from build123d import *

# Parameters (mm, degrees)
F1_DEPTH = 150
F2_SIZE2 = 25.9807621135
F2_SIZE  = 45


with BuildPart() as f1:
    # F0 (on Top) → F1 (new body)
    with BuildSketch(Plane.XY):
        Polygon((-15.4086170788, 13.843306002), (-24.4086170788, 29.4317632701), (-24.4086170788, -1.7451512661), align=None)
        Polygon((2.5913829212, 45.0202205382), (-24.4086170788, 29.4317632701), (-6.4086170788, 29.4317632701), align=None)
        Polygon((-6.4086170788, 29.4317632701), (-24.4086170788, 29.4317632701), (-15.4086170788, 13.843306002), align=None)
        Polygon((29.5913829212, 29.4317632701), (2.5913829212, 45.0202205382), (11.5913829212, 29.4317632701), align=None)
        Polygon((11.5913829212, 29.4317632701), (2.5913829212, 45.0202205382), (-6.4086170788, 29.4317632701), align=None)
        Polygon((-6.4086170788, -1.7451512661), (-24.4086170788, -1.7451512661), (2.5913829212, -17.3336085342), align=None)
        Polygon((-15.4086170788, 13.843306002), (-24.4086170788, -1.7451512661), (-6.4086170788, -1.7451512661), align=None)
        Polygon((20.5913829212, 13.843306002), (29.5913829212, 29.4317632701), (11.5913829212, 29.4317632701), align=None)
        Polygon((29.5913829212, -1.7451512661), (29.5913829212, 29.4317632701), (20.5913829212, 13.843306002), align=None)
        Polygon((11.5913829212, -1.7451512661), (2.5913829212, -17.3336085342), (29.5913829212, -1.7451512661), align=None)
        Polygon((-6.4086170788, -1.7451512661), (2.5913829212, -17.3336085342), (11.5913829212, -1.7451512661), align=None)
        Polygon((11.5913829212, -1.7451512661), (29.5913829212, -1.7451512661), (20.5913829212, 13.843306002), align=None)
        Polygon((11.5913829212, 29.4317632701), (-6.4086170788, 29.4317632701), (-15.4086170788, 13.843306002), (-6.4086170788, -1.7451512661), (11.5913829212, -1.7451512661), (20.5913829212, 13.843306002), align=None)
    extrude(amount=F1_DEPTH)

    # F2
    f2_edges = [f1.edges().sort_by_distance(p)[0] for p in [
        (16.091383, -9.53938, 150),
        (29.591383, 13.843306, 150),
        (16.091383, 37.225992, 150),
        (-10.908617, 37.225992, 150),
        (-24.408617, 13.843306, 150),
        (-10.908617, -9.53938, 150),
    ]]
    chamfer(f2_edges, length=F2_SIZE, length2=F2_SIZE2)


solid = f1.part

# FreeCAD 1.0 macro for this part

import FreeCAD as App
import Part
import Sketcher

V = App.Vector
Q = App.Units.Quantity


def edges_at(feature, points):
    """Names of the edges that pass closest to the given points."""
    edges = feature.Shape.Edges
    near = lambda p: min(range(len(edges)), key=lambda i: edges[i].distToShape(Part.Vertex(*p))[0])
    return sorted({f"Edge{near(p) + 1}" for p in points})

doc = App.newDocument("Part")
body = doc.addObject("PartDesign::Body", "Body")

# Sketch on XY plane
sketch1 = body.newObject("Sketcher::SketchObject", "Sketch")
sketch1.AttachmentSupport = (doc.getObject("XY_Plane"), [""])
sketch1.MapMode = "FlatFace"
sketch1.addGeometry([
    Part.LineSegment(V(3, -17, 0), V(30, -2, 0)),  # 0
    Part.LineSegment(V(30, -2, 0), V(30, 29, 0)),  # 1
    Part.LineSegment(V(30, 29, 0), V(3, 45, 0)),  # 2
    Part.LineSegment(V(3, 45, 0), V(-24, 29, 0)),  # 3
    Part.LineSegment(V(-24, 29, 0), V(-24, -2, 0)),  # 4
    Part.LineSegment(V(-24, -2, 0), V(3, -17, 0)),  # 5
], False)
sketch1.addConstraint([
    Sketcher.Constraint("Coincident", 0, 2, 1, 1),
    Sketcher.Constraint("Coincident", 1, 2, 2, 1),
    Sketcher.Constraint("Coincident", 2, 2, 3, 1),
    Sketcher.Constraint("Coincident", 3, 2, 4, 1),
    Sketcher.Constraint("Coincident", 4, 2, 5, 1),
    Sketcher.Constraint("Coincident", 5, 2, 0, 1),
    Sketcher.Constraint("Vertical", 1),
    Sketcher.Constraint("Vertical", 4),
    Sketcher.Constraint("Parallel", 0, 3),
    Sketcher.Constraint("Parallel", 2, 5),
    Sketcher.Constraint("Horizontal", 1, 2, 3, 2),
    Sketcher.Constraint("Horizontal", 0, 2, 4, 2),
    Sketcher.Constraint("Vertical", 2, 2, 5, 2),
    Sketcher.Constraint("Angle", 0, Q("30 deg")),
    Sketcher.Constraint("DistanceX", 2, 2, 1, 2, Q("27 mm")),
    Sketcher.Constraint("DistanceY", 1, 1, 1, 2, Q("31.176915 mm")),
    Sketcher.Constraint("DistanceY", 0, 2, -1, 1, Q("1.745151 mm")),
    Sketcher.Constraint("DistanceX", -1, 1, 0, 2, Q("29.591383 mm")),
])
pad1 = body.newObject("PartDesign::Pad", "Pad")
pad1.Profile = sketch1
pad1.Length = 150
doc.recompute()

chamfer = body.newObject("PartDesign::Chamfer", "Chamfer")
chamfer.Base = (pad1, edges_at(pad1, [
    (16.091, -9.539, 150),
    (29.591, 13.843, 150),
    (16.091, 37.226, 150),
    (-10.909, 37.226, 150),
    (-24.409, 13.843, 150),
    (-10.909, -9.539, 150),
]))
chamfer.ChamferType = "Two distances"
chamfer.Size = 45
chamfer.Size2 = 25.980762

doc.recompute()
